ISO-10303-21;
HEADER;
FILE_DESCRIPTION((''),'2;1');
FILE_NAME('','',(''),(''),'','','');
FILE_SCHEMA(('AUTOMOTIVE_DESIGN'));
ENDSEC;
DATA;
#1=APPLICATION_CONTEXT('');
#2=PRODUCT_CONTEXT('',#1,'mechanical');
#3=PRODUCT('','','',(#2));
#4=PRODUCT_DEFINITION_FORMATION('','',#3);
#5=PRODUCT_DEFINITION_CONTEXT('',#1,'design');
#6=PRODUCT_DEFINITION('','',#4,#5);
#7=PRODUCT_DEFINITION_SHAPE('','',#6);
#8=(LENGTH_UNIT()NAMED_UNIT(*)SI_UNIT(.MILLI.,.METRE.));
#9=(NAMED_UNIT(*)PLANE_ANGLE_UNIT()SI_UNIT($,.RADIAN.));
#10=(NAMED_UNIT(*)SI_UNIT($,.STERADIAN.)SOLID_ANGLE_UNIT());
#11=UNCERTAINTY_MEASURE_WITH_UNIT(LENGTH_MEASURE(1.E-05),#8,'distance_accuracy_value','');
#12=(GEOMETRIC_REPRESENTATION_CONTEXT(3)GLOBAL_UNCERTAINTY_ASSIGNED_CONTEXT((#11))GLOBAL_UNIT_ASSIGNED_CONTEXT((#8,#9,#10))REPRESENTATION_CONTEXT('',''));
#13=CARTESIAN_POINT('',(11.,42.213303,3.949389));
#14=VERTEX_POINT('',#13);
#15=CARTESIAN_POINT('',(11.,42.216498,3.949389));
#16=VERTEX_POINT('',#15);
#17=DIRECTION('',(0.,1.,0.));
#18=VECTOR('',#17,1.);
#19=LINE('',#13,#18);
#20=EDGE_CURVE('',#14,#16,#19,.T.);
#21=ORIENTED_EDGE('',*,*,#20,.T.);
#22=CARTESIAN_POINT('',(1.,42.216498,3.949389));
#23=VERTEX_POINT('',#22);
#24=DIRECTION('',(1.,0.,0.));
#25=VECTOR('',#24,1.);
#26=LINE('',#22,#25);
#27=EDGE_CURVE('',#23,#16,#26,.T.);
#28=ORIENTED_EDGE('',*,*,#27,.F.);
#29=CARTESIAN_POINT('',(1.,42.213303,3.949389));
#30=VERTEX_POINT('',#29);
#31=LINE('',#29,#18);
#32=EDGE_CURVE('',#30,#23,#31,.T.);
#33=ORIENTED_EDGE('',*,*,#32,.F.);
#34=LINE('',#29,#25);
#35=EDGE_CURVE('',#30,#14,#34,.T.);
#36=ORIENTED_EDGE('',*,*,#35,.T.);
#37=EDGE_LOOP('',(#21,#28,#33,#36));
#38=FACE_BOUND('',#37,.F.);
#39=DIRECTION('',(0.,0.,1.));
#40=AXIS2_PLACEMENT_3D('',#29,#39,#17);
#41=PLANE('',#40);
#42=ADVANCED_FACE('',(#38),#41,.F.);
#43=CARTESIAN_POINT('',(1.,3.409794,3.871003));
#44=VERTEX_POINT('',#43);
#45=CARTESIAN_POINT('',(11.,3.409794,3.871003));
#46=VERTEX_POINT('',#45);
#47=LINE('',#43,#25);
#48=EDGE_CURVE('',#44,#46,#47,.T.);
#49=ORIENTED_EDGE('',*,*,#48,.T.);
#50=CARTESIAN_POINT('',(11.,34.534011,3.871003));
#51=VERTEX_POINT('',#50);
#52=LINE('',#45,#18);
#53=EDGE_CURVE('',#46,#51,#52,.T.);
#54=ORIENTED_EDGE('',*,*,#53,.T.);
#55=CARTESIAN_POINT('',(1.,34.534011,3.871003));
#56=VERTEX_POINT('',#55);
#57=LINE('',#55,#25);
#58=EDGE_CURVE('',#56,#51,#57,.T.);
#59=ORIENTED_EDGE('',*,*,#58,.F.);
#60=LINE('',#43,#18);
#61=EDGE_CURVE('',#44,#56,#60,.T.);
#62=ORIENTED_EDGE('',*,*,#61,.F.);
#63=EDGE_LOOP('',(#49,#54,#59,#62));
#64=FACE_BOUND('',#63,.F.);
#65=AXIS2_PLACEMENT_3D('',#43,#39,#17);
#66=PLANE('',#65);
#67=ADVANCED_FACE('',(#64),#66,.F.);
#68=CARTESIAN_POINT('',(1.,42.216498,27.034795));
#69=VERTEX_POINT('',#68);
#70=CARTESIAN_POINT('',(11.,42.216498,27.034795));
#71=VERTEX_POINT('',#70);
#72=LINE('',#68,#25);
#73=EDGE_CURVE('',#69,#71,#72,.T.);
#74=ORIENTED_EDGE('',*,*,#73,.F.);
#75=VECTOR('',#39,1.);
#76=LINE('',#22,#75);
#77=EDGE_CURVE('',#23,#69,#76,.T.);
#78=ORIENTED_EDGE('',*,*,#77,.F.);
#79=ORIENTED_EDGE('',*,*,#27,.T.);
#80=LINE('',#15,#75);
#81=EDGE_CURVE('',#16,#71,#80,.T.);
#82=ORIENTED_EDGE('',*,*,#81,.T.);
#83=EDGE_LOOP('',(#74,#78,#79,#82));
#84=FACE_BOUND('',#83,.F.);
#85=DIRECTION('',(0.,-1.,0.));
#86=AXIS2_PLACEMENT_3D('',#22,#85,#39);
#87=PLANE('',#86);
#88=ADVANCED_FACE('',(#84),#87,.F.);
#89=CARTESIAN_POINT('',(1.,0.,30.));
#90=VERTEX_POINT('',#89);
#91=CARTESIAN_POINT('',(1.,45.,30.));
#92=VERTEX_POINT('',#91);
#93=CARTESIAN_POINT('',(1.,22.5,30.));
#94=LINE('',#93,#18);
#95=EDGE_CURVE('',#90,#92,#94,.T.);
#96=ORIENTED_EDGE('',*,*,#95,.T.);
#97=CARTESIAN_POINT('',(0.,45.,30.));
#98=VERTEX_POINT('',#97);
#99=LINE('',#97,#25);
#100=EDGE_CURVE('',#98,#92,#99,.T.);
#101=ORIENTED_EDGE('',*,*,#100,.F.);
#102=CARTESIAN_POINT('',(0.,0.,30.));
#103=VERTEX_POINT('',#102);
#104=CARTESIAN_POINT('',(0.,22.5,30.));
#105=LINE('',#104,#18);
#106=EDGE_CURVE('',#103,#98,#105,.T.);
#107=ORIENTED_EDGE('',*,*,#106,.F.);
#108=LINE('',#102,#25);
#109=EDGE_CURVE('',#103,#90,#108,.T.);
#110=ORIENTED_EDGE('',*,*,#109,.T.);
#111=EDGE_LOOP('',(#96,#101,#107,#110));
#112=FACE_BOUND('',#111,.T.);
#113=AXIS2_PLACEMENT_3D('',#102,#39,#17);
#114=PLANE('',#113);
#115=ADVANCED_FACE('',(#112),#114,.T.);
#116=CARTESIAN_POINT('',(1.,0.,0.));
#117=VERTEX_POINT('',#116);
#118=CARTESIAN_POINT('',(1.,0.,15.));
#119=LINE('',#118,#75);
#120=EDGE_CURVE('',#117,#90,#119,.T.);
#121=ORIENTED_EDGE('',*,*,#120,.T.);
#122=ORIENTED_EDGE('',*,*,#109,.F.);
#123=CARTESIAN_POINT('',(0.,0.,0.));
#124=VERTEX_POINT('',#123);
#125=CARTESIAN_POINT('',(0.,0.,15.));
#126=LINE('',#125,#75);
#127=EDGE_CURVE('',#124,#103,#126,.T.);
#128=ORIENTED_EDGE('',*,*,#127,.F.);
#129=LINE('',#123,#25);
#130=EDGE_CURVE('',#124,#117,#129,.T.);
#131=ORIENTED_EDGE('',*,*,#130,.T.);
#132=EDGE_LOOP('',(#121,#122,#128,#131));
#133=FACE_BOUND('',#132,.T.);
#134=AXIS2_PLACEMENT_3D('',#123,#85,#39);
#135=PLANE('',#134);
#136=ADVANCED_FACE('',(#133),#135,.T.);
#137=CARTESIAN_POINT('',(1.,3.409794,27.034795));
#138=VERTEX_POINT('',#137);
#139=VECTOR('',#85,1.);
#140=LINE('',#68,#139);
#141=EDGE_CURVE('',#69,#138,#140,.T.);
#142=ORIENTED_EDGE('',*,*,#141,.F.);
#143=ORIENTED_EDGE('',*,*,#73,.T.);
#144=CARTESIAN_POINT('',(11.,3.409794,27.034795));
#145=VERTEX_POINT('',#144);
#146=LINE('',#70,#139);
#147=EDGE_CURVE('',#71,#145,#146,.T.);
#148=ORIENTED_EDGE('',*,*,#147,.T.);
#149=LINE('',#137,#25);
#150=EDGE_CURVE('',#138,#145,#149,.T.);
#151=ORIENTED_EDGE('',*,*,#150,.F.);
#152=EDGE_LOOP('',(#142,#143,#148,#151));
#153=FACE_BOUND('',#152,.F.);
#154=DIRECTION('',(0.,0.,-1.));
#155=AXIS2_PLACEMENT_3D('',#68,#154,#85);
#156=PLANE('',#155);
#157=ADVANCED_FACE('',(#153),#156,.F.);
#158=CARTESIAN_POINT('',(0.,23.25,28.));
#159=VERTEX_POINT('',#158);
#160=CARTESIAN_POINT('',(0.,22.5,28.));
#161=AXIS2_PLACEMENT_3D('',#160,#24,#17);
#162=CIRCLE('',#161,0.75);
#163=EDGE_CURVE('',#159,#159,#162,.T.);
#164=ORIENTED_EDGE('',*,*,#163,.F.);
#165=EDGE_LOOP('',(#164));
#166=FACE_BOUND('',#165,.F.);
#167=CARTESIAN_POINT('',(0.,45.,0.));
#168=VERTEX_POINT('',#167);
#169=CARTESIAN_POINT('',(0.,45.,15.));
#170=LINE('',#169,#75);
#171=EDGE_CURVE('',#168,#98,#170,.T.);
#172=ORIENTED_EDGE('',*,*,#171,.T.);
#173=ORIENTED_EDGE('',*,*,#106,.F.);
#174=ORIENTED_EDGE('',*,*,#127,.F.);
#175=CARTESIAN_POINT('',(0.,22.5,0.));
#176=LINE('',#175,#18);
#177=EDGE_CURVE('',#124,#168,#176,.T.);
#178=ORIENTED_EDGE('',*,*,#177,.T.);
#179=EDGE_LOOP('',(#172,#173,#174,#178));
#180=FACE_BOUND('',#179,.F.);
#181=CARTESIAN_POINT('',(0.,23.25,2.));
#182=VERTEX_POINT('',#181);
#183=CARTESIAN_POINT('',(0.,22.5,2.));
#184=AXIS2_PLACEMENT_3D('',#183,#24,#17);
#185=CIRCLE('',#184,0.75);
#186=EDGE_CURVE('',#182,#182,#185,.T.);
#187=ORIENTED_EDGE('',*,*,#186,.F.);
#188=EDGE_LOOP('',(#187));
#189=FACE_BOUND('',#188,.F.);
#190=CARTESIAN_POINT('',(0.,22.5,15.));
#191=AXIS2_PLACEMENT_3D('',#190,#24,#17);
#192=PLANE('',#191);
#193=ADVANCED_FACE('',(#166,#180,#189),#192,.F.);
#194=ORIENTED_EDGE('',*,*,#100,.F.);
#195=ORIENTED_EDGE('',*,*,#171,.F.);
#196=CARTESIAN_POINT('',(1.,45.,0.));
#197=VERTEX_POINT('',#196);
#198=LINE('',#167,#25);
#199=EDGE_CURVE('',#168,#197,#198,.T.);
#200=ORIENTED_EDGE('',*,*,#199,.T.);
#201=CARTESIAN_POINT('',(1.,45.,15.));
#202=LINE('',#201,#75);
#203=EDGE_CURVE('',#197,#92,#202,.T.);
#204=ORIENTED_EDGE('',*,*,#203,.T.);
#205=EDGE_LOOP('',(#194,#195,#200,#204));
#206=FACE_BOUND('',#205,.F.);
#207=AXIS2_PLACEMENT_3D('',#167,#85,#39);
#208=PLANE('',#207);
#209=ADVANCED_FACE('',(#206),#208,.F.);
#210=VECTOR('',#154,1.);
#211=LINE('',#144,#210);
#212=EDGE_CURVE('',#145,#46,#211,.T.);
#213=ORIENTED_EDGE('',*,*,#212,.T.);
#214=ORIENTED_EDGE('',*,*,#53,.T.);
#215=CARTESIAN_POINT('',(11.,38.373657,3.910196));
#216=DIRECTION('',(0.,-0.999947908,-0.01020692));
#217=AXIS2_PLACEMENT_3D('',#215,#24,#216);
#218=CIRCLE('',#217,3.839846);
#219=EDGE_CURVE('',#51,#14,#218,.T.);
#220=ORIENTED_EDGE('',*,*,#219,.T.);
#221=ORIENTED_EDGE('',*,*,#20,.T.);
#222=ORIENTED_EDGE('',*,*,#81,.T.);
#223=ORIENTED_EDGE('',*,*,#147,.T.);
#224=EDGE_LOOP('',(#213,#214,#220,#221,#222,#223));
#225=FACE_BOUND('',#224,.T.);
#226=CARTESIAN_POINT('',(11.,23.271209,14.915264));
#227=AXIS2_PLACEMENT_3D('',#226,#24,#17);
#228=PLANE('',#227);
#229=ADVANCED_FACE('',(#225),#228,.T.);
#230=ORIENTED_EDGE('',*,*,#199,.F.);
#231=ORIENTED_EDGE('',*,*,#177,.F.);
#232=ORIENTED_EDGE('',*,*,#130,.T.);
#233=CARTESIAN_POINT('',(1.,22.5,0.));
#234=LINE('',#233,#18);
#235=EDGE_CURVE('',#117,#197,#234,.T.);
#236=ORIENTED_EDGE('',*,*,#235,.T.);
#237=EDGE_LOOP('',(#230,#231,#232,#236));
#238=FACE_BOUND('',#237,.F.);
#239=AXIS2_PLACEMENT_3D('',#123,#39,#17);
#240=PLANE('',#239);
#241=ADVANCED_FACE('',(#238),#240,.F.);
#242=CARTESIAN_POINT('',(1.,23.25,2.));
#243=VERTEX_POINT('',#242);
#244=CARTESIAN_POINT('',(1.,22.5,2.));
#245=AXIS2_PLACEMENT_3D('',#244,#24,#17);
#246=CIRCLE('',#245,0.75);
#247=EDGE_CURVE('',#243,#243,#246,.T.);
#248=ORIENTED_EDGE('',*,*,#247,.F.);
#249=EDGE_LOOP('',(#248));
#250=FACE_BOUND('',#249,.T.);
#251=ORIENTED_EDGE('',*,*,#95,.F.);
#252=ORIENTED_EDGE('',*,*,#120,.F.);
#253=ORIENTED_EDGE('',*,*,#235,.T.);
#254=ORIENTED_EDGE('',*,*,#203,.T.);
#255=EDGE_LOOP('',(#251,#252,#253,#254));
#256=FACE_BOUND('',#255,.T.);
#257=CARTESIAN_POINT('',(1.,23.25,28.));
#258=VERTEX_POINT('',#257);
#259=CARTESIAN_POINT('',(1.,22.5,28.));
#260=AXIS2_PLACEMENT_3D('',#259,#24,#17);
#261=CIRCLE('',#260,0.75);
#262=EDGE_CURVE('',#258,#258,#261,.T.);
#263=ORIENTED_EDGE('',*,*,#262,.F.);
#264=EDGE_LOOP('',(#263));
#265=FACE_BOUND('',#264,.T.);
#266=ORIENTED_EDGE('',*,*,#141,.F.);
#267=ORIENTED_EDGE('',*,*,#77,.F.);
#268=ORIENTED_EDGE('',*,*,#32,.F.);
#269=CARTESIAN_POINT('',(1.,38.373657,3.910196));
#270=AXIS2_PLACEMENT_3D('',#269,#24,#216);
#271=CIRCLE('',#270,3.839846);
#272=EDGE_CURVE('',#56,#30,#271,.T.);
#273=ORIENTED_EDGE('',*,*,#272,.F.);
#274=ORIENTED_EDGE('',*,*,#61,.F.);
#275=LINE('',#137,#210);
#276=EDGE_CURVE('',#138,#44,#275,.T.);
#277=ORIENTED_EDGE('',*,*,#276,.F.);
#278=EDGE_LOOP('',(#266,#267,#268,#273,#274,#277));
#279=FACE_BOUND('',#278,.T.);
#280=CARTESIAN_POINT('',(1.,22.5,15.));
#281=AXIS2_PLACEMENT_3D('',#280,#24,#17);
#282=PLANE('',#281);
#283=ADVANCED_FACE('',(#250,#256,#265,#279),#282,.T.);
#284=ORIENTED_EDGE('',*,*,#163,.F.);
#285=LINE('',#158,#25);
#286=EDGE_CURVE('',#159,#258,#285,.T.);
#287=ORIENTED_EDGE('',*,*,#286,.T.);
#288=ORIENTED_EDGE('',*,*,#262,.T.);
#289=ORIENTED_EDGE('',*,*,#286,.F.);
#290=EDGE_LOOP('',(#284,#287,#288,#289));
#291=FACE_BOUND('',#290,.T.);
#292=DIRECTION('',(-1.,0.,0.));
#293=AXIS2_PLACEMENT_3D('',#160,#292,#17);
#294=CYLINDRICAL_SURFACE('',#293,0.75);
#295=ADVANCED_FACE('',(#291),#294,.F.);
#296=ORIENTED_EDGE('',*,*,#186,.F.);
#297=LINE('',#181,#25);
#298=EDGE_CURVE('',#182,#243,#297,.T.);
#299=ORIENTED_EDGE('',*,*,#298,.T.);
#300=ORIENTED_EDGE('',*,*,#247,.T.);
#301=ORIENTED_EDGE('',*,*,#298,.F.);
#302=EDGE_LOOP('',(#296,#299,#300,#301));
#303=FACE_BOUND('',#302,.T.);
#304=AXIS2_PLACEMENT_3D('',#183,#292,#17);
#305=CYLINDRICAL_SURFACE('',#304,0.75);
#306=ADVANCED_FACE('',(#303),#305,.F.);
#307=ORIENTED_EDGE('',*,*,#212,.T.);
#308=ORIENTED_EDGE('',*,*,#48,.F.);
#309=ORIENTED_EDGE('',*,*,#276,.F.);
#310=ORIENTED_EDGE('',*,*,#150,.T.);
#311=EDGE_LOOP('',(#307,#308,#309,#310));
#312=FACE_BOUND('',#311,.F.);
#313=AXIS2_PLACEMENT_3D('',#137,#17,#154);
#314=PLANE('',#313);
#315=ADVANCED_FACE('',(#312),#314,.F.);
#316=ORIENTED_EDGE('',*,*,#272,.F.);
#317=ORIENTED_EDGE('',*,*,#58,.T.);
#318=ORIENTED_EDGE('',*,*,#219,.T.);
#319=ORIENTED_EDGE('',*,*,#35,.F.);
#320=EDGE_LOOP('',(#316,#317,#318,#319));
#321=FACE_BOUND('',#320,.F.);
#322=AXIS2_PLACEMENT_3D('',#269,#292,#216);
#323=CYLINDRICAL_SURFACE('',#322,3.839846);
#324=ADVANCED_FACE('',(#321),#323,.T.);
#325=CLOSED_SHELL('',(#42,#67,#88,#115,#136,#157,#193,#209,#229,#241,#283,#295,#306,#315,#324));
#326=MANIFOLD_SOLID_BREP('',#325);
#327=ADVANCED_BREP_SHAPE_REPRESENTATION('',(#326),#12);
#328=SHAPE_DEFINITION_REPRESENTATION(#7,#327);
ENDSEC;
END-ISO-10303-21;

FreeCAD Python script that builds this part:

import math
import FreeCAD as App
import Part
import Sketcher

V = App.Vector

doc = App.newDocument("Part")
params = doc.addObject("Spreadsheet::Sheet", "Params")
for row, (alias, value) in enumerate([
    ("sketch1_diameter", "1.5 mm"),
    ("sketch1_width", "45 mm"),
    ("sketch1_height", "30 mm"),
    ("pad1_length", "1 mm"),
    ("pad2_length", "10 mm"),
], start=1):
    params.set(f"A{row}", alias)
    params.set(f"B{row}", "=" + value)
    params.setAlias(f"B{row}", alias)

body = doc.addObject("PartDesign::Body", "Body")

# Sketch on YZ plane
sketch1 = body.newObject("Sketcher::SketchObject", "Sketch")
sketch1.AttachmentSupport = (doc.getObject("YZ_Plane"), [""])
sketch1.MapMode = "FlatFace"
sketch1.addGeometry([
    Part.LineSegment(V(0, 30, 0), V(0, 0, 0)),  # 0
    Part.LineSegment(V(0, 0, 0), V(45, 0, 0)),  # 1
    Part.LineSegment(V(45, 0, 0), V(45, 30, 0)),  # 2
    Part.LineSegment(V(45, 30, 0), V(0, 30, 0)),  # 3
    Part.Circle(V(22.5, 2, 0), V(0, 0, 1), 0.8),  # 4
    Part.Circle(V(22.5, 28, 0), V(0, 0, 1), 0.8),  # 5
], False)
sketch1.addConstraint([
    Sketcher.Constraint("Coincident", 0, 2, 1, 1),
    Sketcher.Constraint("Coincident", 1, 2, 2, 1),
    Sketcher.Constraint("Coincident", 2, 2, 3, 1),
    Sketcher.Constraint("Coincident", 3, 2, 0, 1),
    Sketcher.Constraint("Vertical", 0),
    Sketcher.Constraint("Horizontal", 1),
    Sketcher.Constraint("Vertical", 2),
    Sketcher.Constraint("Horizontal", 3),
    Sketcher.Constraint("Coincident", 0, 2, -1, 1),
    Sketcher.Constraint("Equal", 4, 5),
    Sketcher.Constraint("Vertical", 4, 3, 5, 3),
    Sketcher.Constraint("Diameter", 4, 1.5),
    Sketcher.Constraint("DistanceX", 1, 1, 1, 2, 45.0),
    Sketcher.Constraint("DistanceY", 0, 2, 0, 1, 30.0),
    Sketcher.Constraint("DistanceY", -1, 1, 4, 3, 2.0),
    Sketcher.Constraint("DistanceY", -1, 1, 5, 3, 28.0),
    Sketcher.Constraint("DistanceX", -1, 1, 4, 3, 22.5),
])
sketch1.setExpression("Constraints[11]", "Params.sketch1_diameter")
sketch1.setExpression("Constraints[12]", "Params.sketch1_width")
sketch1.setExpression("Constraints[13]", "Params.sketch1_height")
pad1 = body.newObject("PartDesign::Pad", "Pad")
pad1.Profile = sketch1
pad1.setExpression("Length", "Params.pad1_length")

# Sketch on YZ plane
sketch2 = body.newObject("Sketcher::SketchObject", "Sketch001")
sketch2.AttachmentSupport = (doc.getObject("YZ_Plane"), [""])
sketch2.MapMode = "FlatFace"
sketch2.AttachmentOffset = App.Placement(V(0, 0, 1), App.Rotation())
sketch2.addGeometry([
    Part.LineSegment(V(42.2165, 27.0348, 0), V(3.4098, 27.0348, 0)),  # 0
    Part.LineSegment(V(3.4098, 27.0348, 0), V(3.4098, 3.871, 0)),  # 1
    Part.LineSegment(V(3.4098, 3.871, 0), V(34.534, 3.871, 0)),  # 2
    Part.ArcOfCircle(Part.Circle(V(38.3737, 3.9102, 0), V(0, 0, 1), 3.8398), math.radians(-179), math.radians(1)),  # 3
    Part.LineSegment(V(42.2133, 3.9494, 0), V(42.2165, 3.9494, 0)),  # 4
    Part.LineSegment(V(42.2165, 3.9494, 0), V(42.2165, 27.0348, 0)),  # 5
], False)
sketch2.addConstraint([
    Sketcher.Constraint("Coincident", 0, 2, 1, 1),
    Sketcher.Constraint("Coincident", 1, 2, 2, 1),
    Sketcher.Constraint("Coincident", 2, 2, 3, 1),
    Sketcher.Constraint("Coincident", 3, 2, 4, 1),
    Sketcher.Constraint("Coincident", 4, 2, 5, 1),
    Sketcher.Constraint("Coincident", 5, 2, 0, 1),
    Sketcher.Constraint("Horizontal", 0),
    Sketcher.Constraint("Vertical", 1),
    Sketcher.Constraint("Horizontal", 2),
    Sketcher.Constraint("Horizontal", 4),
    Sketcher.Constraint("Vertical", 5),
    Sketcher.Constraint("Radius", 3, 3.839846),
    Sketcher.Constraint("DistanceY", 3, 3, 0, 2, 23.124599),
    Sketcher.Constraint("DistanceX", 0, 2, 0, 1, 38.806704),
    Sketcher.Constraint("DistanceX", 2, 1, 2, 2, 31.124217),
    Sketcher.Constraint("DistanceX", 4, 1, 4, 2, 0.003195),
    Sketcher.Constraint("DistanceY", 1, 2, 1, 1, 23.163792),
    Sketcher.Constraint("DistanceX", -1, 1, 2, 2, 34.534011),
    Sketcher.Constraint("DistanceY", -1, 1, 3, 2, 3.949389),
])
pad2 = body.newObject("PartDesign::Pad", "Pad001")
pad2.Profile = sketch2
pad2.setExpression("Length", "Params.pad2_length")

doc.recompute()
